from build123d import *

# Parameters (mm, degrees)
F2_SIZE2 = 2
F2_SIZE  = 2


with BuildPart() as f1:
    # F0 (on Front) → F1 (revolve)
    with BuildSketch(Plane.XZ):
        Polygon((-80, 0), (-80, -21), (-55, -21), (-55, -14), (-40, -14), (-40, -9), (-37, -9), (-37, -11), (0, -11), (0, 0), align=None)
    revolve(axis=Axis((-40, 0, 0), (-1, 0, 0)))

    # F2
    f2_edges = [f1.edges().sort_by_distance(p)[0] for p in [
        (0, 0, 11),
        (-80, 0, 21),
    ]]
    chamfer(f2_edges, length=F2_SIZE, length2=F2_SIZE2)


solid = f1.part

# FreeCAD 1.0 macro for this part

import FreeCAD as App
import Part
import Sketcher
Q = App.Units.Quantity


def edges_at(feature, points):
    """Names of the edges that pass closest to the given points."""
    edges = feature.Shape.Edges
    near = lambda p: min(range(len(edges)), key=lambda i: edges[i].distToShape(Part.Vertex(*p))[0])
    return sorted({f"Edge{near(p) + 1}" for p in points})

doc = App.newDocument("Part")
params = doc.addObject("Spreadsheet::Sheet", "Params")
for row, (alias, value) in enumerate([
    ("sketch1_width", "25 mm"),
    ("sketch1_width2", "15 mm"),
    ("sketch1_width3", "3 mm"),
    ("sketch1_width4", "37 mm"),
    ("sketch1_height", "21 mm"),
    ("revolution_angle", "360 deg"),
    ("chamfer_size", "2 mm"),
    ("chamfer_size2", "2 mm"),
], start=1):
    params.set(f"A{row}", alias)
    params.set(f"B{row}", "=" + value)
    params.setAlias(f"B{row}", alias)

body = doc.addObject("PartDesign::Body", "Body")

sketch1 = body.newObject("Sketcher::SketchObject", "Sketch")
sketch1.AttachmentSupport = (doc.getObject("XZ_Plane"), [""])
sketch1.MapMode = "FlatFace"
sketch1.addGeometry([
    Part.LineSegment(App.Vector(-80, 0, 0), App.Vector(-80, -21, 0)),
    Part.LineSegment(App.Vector(-80, -21, 0), App.Vector(-55, -21, 0)),
    Part.LineSegment(App.Vector(-55, -21, 0), App.Vector(-55, -14, 0)),
    Part.LineSegment(App.Vector(-55, -14, 0), App.Vector(-40, -14, 0)),
    Part.LineSegment(App.Vector(-40, -14, 0), App.Vector(-40, -9, 0)),
    Part.LineSegment(App.Vector(-40, -9, 0), App.Vector(-37, -9, 0)),
    Part.LineSegment(App.Vector(-37, -9, 0), App.Vector(-37, -11, 0)),
    Part.LineSegment(App.Vector(-37, -11, 0), App.Vector(0, -11, 0)),
    Part.LineSegment(App.Vector(0, -11, 0), App.Vector(0, 0, 0)),
    Part.LineSegment(App.Vector(0, 0, 0), App.Vector(-80, 0, 0)),
], False)
sketch1.addConstraint([
    Sketcher.Constraint("Coincident", 0, 2, 1, 1),
    Sketcher.Constraint("Coincident", 1, 2, 2, 1),
    Sketcher.Constraint("Coincident", 2, 2, 3, 1),
    Sketcher.Constraint("Coincident", 3, 2, 4, 1),
    Sketcher.Constraint("Coincident", 4, 2, 5, 1),
    Sketcher.Constraint("Coincident", 5, 2, 6, 1),
    Sketcher.Constraint("Coincident", 6, 2, 7, 1),
    Sketcher.Constraint("Coincident", 7, 2, 8, 1),
    Sketcher.Constraint("Coincident", 8, 2, 9, 1),
    Sketcher.Constraint("Coincident", 9, 2, 0, 1),
    Sketcher.Constraint("Vertical", 0),
    Sketcher.Constraint("Horizontal", 1),
    Sketcher.Constraint("Vertical", 2),
    Sketcher.Constraint("Horizontal", 3),
    Sketcher.Constraint("Vertical", 4),
    Sketcher.Constraint("Horizontal", 5),
    Sketcher.Constraint("Vertical", 6),
    Sketcher.Constraint("Horizontal", 7),
    Sketcher.Constraint("Vertical", 8),
    Sketcher.Constraint("Horizontal", 9),
    Sketcher.Constraint("Coincident", 8, 2, -1, 1),
    Sketcher.Constraint("DistanceX", 1, 1, 1, 2, Q("25 mm")),
    Sketcher.Constraint("DistanceX", 3, 1, 3, 2, Q("15 mm")),
    Sketcher.Constraint("DistanceX", 5, 1, 5, 2, Q("3 mm")),
    Sketcher.Constraint("DistanceX", 7, 1, 7, 2, Q("37 mm")),
    Sketcher.Constraint("DistanceY", 0, 2, 0, 1, Q("21 mm")),
    Sketcher.Constraint("DistanceY", 2, 1, 2, 2, Q("7 mm")),
    Sketcher.Constraint("DistanceY", 4, 1, 4, 2, Q("5 mm")),
    Sketcher.Constraint("DistanceY", 6, 2, 6, 1, Q("2 mm")),
])
sketch1.setExpression("Constraints[21]", "Params.sketch1_width")
sketch1.setExpression("Constraints[22]", "Params.sketch1_width2")
sketch1.setExpression("Constraints[23]", "Params.sketch1_width3")
sketch1.setExpression("Constraints[24]", "Params.sketch1_width4")
sketch1.setExpression("Constraints[25]", "Params.sketch1_height")
revolution = body.newObject("PartDesign::Revolution", "Revolution")
revolution.Profile = sketch1
revolution.ReferenceAxis = (sketch1, ["H_Axis"])
revolution.setExpression("Angle", "Params.revolution_angle")
doc.recompute()

chamfer = body.newObject("PartDesign::Chamfer", "Chamfer")
chamfer.Base = (revolution, edges_at(revolution, [(0, 0, 11), (-80, 0, 21)]))
chamfer.ChamferType = "Two distances"
chamfer.setExpression("Size", "Params.chamfer_size")
chamfer.setExpression("Size2", "Params.chamfer_size2")

doc.recompute()
